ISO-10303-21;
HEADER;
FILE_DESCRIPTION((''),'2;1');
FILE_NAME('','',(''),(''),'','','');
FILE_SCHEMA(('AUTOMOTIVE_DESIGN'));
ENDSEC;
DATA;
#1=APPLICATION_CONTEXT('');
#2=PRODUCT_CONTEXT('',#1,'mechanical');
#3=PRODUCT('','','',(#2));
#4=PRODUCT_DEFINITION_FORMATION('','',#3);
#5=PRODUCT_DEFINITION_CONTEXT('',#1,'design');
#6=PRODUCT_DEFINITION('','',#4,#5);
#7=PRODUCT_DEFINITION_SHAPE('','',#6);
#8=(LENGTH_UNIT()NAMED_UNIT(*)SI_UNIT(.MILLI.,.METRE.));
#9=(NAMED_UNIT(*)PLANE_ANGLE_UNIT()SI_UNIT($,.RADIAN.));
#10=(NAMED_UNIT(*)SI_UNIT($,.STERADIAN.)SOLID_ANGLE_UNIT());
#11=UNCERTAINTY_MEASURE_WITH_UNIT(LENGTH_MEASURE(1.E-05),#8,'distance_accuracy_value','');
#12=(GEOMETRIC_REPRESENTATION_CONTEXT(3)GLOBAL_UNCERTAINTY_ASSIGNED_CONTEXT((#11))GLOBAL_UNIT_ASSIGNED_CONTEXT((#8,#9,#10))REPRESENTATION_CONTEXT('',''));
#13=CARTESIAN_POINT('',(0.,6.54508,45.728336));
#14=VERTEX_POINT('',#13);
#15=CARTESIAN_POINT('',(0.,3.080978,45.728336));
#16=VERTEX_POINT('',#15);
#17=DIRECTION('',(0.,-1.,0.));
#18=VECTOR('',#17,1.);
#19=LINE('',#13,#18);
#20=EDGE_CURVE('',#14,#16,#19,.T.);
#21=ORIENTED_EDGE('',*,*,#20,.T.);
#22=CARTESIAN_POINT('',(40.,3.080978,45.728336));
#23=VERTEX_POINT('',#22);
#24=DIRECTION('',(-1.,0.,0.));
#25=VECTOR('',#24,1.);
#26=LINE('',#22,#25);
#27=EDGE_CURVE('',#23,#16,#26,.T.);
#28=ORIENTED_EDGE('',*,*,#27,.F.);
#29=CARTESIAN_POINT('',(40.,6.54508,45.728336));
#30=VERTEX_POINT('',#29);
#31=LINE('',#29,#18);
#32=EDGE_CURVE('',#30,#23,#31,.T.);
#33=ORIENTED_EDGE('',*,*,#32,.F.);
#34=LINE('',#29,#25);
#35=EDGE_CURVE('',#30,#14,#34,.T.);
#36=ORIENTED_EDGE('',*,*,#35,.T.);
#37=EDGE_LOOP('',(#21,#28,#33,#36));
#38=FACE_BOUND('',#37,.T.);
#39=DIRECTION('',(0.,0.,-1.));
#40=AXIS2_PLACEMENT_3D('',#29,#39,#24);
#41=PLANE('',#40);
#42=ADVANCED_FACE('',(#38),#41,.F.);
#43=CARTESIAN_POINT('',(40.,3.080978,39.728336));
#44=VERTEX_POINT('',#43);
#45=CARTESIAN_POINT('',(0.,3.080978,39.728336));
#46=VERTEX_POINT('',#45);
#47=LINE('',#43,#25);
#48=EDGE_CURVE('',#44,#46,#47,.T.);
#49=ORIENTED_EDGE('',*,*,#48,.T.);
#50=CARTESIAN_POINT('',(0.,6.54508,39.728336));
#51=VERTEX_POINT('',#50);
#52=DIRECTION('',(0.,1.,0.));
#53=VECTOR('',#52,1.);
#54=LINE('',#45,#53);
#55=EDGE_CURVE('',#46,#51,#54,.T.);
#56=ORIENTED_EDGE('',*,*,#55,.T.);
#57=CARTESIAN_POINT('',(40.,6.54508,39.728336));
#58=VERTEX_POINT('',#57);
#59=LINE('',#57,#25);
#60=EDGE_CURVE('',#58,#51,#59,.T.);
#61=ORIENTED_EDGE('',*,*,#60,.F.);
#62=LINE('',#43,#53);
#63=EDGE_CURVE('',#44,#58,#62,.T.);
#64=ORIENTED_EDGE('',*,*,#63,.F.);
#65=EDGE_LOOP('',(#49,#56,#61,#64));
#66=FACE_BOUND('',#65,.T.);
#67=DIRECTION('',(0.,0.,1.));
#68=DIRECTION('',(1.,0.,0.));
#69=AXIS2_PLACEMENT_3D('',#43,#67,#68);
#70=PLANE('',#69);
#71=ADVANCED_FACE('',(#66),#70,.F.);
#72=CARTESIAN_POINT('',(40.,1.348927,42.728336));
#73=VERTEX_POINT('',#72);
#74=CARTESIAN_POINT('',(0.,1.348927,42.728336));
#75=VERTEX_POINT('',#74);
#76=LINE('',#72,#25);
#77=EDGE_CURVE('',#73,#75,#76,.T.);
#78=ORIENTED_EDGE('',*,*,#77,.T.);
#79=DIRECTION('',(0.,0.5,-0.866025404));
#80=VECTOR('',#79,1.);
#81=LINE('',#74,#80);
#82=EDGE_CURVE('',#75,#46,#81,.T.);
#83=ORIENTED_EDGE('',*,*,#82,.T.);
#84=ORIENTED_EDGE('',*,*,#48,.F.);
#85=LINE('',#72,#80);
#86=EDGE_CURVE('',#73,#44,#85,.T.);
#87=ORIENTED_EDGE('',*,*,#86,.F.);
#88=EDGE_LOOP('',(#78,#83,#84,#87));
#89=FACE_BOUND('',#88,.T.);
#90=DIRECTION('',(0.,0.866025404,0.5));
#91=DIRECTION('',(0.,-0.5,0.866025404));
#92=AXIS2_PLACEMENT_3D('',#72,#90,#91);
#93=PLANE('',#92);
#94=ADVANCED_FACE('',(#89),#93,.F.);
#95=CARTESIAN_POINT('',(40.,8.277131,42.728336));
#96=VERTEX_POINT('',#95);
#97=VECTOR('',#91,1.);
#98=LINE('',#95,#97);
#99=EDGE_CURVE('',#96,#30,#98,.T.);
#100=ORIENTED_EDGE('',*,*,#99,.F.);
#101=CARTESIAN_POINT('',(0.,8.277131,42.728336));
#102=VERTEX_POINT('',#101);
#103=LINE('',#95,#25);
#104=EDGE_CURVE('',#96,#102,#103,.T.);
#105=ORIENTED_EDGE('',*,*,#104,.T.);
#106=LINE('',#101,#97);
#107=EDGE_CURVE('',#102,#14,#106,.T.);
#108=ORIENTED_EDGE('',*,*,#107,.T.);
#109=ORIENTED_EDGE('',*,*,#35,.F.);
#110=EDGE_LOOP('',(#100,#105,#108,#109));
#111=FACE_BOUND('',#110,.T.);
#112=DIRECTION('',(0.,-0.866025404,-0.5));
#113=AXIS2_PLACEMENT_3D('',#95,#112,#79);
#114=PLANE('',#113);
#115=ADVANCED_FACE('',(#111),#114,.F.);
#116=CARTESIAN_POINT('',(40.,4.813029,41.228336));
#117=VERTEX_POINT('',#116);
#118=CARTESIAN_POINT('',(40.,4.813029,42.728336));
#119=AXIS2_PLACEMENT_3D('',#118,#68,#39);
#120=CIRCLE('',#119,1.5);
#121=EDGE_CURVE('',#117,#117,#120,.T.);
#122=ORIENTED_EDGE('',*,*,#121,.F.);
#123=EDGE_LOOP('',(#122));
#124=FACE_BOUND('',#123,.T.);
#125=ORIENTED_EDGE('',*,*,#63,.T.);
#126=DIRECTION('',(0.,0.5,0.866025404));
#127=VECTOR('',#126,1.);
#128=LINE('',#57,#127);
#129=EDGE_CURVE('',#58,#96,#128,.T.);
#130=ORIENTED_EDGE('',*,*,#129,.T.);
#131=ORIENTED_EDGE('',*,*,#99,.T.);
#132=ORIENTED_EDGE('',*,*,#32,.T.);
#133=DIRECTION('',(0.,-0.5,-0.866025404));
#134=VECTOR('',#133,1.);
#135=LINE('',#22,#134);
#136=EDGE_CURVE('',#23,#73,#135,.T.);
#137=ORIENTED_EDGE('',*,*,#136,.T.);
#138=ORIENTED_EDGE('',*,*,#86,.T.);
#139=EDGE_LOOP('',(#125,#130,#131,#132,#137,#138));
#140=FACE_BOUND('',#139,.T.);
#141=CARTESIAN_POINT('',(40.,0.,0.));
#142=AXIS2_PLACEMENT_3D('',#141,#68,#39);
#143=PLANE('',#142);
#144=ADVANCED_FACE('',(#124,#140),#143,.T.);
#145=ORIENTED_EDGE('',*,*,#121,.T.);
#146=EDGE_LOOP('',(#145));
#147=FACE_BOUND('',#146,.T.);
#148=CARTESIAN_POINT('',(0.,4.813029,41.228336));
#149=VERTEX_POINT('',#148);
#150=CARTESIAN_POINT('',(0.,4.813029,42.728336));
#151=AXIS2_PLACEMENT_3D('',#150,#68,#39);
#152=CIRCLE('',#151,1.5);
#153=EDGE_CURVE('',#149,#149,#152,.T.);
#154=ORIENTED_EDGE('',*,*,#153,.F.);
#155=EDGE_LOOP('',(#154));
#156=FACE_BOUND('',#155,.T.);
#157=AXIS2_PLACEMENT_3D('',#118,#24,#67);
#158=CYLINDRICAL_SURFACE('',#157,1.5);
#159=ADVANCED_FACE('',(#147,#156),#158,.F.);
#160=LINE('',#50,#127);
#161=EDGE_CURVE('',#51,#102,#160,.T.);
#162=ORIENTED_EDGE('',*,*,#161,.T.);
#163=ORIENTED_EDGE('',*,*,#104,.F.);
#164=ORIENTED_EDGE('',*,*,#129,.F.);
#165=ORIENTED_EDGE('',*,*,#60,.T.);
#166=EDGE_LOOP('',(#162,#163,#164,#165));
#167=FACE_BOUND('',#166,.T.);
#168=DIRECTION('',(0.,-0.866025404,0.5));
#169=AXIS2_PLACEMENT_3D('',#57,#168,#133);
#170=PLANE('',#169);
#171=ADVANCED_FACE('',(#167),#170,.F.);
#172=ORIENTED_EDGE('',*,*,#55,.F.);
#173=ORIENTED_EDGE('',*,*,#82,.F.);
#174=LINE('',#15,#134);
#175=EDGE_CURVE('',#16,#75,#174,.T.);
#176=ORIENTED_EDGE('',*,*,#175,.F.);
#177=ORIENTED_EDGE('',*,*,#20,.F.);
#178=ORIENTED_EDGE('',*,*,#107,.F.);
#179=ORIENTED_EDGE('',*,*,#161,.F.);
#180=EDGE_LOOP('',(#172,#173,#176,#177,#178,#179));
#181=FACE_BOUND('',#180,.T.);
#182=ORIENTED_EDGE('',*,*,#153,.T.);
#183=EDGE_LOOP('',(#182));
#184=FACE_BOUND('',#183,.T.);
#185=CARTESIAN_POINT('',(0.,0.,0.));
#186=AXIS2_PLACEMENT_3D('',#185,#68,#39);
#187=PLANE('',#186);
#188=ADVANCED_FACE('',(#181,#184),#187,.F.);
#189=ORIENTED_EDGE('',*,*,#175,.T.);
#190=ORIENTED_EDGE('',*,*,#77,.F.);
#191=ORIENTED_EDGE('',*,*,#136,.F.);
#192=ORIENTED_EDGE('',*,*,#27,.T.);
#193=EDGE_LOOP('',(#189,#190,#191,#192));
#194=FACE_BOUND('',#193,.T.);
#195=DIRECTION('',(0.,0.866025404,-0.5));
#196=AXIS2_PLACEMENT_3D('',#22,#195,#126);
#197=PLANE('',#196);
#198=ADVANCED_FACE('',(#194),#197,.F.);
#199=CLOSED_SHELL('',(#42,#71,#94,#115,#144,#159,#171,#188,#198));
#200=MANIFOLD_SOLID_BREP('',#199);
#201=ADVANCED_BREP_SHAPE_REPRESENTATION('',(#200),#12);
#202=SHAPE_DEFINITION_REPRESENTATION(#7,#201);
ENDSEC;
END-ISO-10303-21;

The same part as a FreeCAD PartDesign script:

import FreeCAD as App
import Part
import Sketcher
Q = App.Units.Quantity

doc = App.newDocument("Part")
body = doc.addObject("PartDesign::Body", "Body")

# Sketch on YZ plane
sketch1 = body.newObject("Sketcher::SketchObject", "Sketch")
sketch1.AttachmentSupport = (doc.getObject("YZ_Plane"), [""])
sketch1.MapMode = "FlatFace"
sketch1.addGeometry([
    Part.LineSegment(App.Vector(8.3, 42.7, 0), App.Vector(6.5, 45.7, 0)),  # 0
    Part.LineSegment(App.Vector(6.5, 45.7, 0), App.Vector(3.1, 45.7, 0)),  # 1
    Part.LineSegment(App.Vector(3.1, 45.7, 0), App.Vector(1.3, 42.7, 0)),  # 2
    Part.LineSegment(App.Vector(1.3, 42.7, 0), App.Vector(3.1, 39.7, 0)),  # 3
    Part.LineSegment(App.Vector(3.1, 39.7, 0), App.Vector(6.5, 39.7, 0)),  # 4
    Part.LineSegment(App.Vector(6.5, 39.7, 0), App.Vector(8.3, 42.7, 0)),  # 5
    Part.Circle(App.Vector(4.8, 42.7, 0), App.Vector(0, 0, 1), 1.5),  # 6
], False)
sketch1.addConstraint([
    Sketcher.Constraint("Coincident", 0, 2, 1, 1),
    Sketcher.Constraint("Coincident", 1, 2, 2, 1),
    Sketcher.Constraint("Coincident", 2, 2, 3, 1),
    Sketcher.Constraint("Coincident", 3, 2, 4, 1),
    Sketcher.Constraint("Coincident", 4, 2, 5, 1),
    Sketcher.Constraint("Coincident", 5, 2, 0, 1),
    Sketcher.Constraint("Horizontal", 1),
    Sketcher.Constraint("Horizontal", 4),
    Sketcher.Constraint("Parallel", 0, 3),
    Sketcher.Constraint("Parallel", 2, 5),
    Sketcher.Constraint("Horizontal", 6, 3, 2, 2),
    Sketcher.Constraint("Horizontal", 2, 2, 5, 2),
    Sketcher.Constraint("Vertical", 1, 2, 3, 2),
    Sketcher.Constraint("Vertical", 0, 2, 4, 2),
    Sketcher.Constraint("Diameter", 6, 3.0),
    Sketcher.Constraint("Angle", 0, Q("120 deg")),
    Sketcher.Constraint("DistanceY", 6, 3, 0, 2, 3.0),
    Sketcher.Constraint("DistanceX", 1, 2, 1, 1, 3.464102),
    Sketcher.Constraint("DistanceX", 2, 2, 6, 3, 3.464102),
    Sketcher.Constraint("DistanceX", -1, 1, 6, 3, 4.813029),
    Sketcher.Constraint("DistanceY", -1, 1, 6, 3, 42.728336),
])
pad1 = body.newObject("PartDesign::Pad", "Pad")
pad1.Profile = sketch1
pad1.Length = 40

doc.recompute()
